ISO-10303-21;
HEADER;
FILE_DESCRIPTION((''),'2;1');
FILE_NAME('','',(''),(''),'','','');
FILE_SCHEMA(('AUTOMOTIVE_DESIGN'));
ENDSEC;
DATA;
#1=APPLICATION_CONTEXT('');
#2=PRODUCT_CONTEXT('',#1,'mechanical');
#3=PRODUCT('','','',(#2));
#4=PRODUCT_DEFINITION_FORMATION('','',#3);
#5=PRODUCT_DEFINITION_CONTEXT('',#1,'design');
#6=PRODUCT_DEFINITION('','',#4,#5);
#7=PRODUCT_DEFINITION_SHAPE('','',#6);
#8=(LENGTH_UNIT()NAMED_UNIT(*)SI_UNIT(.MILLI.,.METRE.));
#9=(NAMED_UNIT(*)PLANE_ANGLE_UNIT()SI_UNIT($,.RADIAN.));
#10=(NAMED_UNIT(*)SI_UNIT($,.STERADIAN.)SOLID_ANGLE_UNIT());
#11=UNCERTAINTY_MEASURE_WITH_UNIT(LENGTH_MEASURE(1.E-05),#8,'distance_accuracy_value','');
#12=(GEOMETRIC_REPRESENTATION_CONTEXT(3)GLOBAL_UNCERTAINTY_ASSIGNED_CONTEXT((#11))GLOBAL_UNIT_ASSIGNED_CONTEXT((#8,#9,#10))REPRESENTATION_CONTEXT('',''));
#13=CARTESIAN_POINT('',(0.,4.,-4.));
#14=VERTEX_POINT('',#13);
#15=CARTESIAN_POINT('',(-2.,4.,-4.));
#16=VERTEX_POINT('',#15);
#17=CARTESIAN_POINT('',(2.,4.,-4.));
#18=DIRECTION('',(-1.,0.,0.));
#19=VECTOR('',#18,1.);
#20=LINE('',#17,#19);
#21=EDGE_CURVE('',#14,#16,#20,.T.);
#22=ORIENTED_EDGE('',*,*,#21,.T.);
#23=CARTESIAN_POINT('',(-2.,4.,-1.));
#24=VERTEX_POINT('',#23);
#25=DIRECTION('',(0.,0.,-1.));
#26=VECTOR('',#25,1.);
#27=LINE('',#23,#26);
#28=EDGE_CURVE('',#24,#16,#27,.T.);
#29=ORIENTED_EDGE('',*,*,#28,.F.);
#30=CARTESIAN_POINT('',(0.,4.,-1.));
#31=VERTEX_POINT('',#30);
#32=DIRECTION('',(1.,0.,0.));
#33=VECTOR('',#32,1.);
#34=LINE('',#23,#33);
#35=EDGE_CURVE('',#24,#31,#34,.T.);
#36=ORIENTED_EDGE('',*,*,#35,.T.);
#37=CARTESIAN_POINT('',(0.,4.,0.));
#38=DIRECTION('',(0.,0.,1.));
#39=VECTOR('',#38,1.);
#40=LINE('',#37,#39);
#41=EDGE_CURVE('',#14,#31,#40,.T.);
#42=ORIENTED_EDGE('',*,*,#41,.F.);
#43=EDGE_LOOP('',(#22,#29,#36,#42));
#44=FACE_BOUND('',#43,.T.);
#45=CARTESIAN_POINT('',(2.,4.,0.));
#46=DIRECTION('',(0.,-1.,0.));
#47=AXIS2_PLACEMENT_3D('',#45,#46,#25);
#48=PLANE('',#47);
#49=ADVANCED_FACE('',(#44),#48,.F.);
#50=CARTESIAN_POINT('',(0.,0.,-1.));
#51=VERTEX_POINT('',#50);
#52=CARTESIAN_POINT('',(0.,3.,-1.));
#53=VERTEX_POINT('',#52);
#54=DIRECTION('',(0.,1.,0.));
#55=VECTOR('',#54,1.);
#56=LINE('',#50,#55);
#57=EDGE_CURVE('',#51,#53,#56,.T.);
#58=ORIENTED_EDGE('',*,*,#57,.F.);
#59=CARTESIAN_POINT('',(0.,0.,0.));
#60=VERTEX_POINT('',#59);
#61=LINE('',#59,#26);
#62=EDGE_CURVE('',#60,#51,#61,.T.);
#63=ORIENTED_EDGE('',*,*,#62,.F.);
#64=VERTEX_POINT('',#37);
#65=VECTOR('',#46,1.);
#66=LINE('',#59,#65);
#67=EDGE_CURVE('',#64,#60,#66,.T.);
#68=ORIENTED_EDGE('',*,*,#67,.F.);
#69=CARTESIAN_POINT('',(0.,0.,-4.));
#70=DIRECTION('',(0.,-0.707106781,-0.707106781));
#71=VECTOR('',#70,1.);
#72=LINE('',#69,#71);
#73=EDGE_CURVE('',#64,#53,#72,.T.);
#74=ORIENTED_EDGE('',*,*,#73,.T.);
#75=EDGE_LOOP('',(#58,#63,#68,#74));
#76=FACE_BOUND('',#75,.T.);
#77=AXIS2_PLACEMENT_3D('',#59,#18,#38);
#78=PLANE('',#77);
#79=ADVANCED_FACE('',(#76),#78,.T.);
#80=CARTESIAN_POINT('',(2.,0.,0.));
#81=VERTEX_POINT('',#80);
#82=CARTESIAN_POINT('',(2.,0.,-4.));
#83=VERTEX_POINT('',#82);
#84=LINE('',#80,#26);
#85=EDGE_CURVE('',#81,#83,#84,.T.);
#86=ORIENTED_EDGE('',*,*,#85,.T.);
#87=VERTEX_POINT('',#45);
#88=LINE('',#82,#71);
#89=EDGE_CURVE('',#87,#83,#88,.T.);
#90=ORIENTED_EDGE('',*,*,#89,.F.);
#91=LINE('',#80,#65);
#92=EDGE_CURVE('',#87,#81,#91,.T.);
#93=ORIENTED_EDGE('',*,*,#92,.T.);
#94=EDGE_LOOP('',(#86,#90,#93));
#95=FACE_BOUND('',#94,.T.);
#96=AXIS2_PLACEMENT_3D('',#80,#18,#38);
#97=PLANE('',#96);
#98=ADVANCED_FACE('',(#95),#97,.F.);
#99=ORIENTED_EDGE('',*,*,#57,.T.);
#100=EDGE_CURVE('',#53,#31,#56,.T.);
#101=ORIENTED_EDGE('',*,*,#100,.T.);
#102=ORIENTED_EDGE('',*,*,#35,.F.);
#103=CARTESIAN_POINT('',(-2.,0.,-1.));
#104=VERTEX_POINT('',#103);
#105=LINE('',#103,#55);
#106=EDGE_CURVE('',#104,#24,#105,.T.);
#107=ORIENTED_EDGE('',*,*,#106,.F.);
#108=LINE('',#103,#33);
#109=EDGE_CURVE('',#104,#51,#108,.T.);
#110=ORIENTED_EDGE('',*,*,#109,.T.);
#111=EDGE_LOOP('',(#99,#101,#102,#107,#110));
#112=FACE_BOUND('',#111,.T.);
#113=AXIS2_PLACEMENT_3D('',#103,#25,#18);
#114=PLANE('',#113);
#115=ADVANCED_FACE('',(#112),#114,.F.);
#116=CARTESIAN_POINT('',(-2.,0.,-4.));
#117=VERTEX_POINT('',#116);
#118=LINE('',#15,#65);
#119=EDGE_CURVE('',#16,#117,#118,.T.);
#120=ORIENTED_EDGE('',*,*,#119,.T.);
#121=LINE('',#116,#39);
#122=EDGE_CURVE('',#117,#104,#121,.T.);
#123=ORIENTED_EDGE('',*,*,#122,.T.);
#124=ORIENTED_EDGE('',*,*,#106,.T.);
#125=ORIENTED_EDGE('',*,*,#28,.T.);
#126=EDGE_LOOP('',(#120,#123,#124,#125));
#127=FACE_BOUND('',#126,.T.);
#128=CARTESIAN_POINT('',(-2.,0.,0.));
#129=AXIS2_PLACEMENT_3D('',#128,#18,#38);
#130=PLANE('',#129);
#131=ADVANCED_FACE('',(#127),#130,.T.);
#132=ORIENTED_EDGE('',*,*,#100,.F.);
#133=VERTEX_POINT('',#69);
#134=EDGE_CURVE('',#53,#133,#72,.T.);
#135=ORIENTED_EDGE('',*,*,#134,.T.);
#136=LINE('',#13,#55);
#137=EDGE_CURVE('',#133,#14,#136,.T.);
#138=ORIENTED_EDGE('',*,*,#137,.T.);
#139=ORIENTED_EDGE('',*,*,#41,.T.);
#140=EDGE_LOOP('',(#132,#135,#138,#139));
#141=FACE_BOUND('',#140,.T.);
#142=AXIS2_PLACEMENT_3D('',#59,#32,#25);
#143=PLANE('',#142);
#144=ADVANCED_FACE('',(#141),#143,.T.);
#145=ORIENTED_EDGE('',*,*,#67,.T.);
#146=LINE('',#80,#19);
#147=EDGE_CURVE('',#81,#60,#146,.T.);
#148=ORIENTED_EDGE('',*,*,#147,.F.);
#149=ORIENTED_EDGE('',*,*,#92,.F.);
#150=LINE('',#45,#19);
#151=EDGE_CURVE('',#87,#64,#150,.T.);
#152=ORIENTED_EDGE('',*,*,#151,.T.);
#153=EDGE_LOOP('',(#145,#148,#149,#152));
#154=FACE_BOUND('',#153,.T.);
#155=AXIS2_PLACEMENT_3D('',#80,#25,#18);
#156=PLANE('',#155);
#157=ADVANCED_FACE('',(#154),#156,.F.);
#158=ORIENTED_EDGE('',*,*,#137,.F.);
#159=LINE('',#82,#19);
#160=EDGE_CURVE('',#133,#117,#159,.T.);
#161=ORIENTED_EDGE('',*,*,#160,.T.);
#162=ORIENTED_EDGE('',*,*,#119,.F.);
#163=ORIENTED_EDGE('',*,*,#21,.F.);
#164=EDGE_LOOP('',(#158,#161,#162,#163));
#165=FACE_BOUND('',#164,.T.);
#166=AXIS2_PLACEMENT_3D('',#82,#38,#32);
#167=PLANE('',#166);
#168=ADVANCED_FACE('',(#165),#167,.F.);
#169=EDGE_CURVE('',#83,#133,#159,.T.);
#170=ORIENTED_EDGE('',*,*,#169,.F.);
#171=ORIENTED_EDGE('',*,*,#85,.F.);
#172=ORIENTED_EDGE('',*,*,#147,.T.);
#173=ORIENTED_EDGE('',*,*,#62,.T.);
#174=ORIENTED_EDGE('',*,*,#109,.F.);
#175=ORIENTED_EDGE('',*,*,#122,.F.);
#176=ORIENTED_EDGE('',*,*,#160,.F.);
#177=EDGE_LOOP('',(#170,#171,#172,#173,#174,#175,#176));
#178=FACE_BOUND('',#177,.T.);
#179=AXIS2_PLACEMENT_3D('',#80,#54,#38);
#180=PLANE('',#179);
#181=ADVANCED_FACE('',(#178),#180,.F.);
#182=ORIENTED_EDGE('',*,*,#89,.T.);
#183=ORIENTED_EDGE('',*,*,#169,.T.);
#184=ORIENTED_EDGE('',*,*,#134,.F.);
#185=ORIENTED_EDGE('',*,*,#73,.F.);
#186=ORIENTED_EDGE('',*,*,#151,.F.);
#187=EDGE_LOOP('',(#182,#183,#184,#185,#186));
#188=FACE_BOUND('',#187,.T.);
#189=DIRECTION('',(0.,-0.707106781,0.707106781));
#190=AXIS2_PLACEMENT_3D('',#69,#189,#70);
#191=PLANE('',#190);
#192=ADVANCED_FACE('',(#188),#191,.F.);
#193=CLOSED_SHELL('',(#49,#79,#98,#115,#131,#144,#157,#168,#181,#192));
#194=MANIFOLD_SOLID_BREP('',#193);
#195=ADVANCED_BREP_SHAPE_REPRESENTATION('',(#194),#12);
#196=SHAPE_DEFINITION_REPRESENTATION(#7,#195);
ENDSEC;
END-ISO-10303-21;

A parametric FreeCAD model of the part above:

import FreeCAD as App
import Part
import Sketcher

V = App.Vector
Q = App.Units.Quantity


def add_polygon(sketch, points):
    """Adds a closed chain of lines whose ends are joined by coincident constraints."""
    first, n = sketch.GeometryCount, len(points)
    for a, b in zip(points, points[1:] + points[:1]):
        sketch.addGeometry(Part.LineSegment(App.Vector(*a, 0), App.Vector(*b, 0)), False)
    for i in range(n):
        sketch.addConstraint(Sketcher.Constraint("Coincident", first + i, 2, first + (i + 1) % n, 1))

doc = App.newDocument("Part")
body = doc.addObject("PartDesign::Body", "Body")

# Sketch on YZ plane
sketch1 = body.newObject("Sketcher::SketchObject", "Sketch")
sketch1.AttachmentSupport = (doc.getObject("YZ_Plane"), [""])
sketch1.MapMode = "FlatFace"
add_polygon(sketch1, [(4, 0), (0, 0), (0, -4), (4, -4)])  # lines 0-3
sketch1.addConstraint(Sketcher.Constraint("Horizontal", 0))
sketch1.addConstraint(Sketcher.Constraint("Vertical", 1))
sketch1.addConstraint(Sketcher.Constraint("Horizontal", 2))
sketch1.addConstraint(Sketcher.Constraint("Vertical", 3))
sketch1.addConstraint(Sketcher.Constraint("Coincident", 0, 2, -1, 1))
sketch1.addConstraint(Sketcher.Constraint("Equal", 2, 1))
sketch1.addConstraint(Sketcher.Constraint("DistanceX", 0, 2, 0, 1, Q("4 mm")))
pad1 = body.newObject("PartDesign::Pad", "Pad")
pad1.Profile = sketch1
pad1.Length = 2

# Sketch on YZ plane
sketch2 = body.newObject("Sketcher::SketchObject", "Sketch001")
sketch2.AttachmentSupport = (doc.getObject("YZ_Plane"), [""])
sketch2.MapMode = "FlatFace"
add_polygon(sketch2, [(4, -4), (0, -4), (0, -1), (4, -1)])  # lines 0-3
sketch2.addConstraint(Sketcher.Constraint("Horizontal", 0))
sketch2.addConstraint(Sketcher.Constraint("Vertical", 1))
sketch2.addConstraint(Sketcher.Constraint("Horizontal", 2))
sketch2.addConstraint(Sketcher.Constraint("Vertical", 3))
sketch2.addConstraint(Sketcher.Constraint("PointOnObject", 0, 2, -2))
sketch2.addConstraint(Sketcher.Constraint("DistanceX", 0, 2, 0, 1, Q("4 mm")))
sketch2.addConstraint(Sketcher.Constraint("DistanceY", 1, 1, 1, 2, Q("3 mm")))
sketch2.addConstraint(Sketcher.Constraint("DistanceY", 0, 2, -1, 1, Q("4 mm")))
pad2 = body.newObject("PartDesign::Pad", "Pad001")
pad2.Profile = sketch2
pad2.Length = 2
pad2.Reversed = True

# Sketch on YZ plane
sketch3 = body.newObject("Sketcher::SketchObject", "Sketch002")
sketch3.AttachmentSupport = (doc.getObject("YZ_Plane"), [""])
sketch3.MapMode = "FlatFace"
sketch3.AttachmentOffset = App.Placement(V(0, 0, 2), App.Rotation())
add_polygon(sketch3, [(4, 0), (0, -4), (4, -4)])  # lines 0-2
sketch3.addConstraint(Sketcher.Constraint("Horizontal", 1))
sketch3.addConstraint(Sketcher.Constraint("Vertical", 2))
sketch3.addConstraint(Sketcher.Constraint("PointOnObject", 0, 2, -2))
sketch3.addConstraint(Sketcher.Constraint("PointOnObject", 2, 2, -1))
sketch3.addConstraint(Sketcher.Constraint("Equal", 1, 2))
sketch3.addConstraint(Sketcher.Constraint("DistanceX", 1, 1, 1, 2, Q("4 mm")))
pocket1 = body.newObject("PartDesign::Pocket", "Pocket")
pocket1.Profile = sketch3
pocket1.Length = 2

doc.recompute()
